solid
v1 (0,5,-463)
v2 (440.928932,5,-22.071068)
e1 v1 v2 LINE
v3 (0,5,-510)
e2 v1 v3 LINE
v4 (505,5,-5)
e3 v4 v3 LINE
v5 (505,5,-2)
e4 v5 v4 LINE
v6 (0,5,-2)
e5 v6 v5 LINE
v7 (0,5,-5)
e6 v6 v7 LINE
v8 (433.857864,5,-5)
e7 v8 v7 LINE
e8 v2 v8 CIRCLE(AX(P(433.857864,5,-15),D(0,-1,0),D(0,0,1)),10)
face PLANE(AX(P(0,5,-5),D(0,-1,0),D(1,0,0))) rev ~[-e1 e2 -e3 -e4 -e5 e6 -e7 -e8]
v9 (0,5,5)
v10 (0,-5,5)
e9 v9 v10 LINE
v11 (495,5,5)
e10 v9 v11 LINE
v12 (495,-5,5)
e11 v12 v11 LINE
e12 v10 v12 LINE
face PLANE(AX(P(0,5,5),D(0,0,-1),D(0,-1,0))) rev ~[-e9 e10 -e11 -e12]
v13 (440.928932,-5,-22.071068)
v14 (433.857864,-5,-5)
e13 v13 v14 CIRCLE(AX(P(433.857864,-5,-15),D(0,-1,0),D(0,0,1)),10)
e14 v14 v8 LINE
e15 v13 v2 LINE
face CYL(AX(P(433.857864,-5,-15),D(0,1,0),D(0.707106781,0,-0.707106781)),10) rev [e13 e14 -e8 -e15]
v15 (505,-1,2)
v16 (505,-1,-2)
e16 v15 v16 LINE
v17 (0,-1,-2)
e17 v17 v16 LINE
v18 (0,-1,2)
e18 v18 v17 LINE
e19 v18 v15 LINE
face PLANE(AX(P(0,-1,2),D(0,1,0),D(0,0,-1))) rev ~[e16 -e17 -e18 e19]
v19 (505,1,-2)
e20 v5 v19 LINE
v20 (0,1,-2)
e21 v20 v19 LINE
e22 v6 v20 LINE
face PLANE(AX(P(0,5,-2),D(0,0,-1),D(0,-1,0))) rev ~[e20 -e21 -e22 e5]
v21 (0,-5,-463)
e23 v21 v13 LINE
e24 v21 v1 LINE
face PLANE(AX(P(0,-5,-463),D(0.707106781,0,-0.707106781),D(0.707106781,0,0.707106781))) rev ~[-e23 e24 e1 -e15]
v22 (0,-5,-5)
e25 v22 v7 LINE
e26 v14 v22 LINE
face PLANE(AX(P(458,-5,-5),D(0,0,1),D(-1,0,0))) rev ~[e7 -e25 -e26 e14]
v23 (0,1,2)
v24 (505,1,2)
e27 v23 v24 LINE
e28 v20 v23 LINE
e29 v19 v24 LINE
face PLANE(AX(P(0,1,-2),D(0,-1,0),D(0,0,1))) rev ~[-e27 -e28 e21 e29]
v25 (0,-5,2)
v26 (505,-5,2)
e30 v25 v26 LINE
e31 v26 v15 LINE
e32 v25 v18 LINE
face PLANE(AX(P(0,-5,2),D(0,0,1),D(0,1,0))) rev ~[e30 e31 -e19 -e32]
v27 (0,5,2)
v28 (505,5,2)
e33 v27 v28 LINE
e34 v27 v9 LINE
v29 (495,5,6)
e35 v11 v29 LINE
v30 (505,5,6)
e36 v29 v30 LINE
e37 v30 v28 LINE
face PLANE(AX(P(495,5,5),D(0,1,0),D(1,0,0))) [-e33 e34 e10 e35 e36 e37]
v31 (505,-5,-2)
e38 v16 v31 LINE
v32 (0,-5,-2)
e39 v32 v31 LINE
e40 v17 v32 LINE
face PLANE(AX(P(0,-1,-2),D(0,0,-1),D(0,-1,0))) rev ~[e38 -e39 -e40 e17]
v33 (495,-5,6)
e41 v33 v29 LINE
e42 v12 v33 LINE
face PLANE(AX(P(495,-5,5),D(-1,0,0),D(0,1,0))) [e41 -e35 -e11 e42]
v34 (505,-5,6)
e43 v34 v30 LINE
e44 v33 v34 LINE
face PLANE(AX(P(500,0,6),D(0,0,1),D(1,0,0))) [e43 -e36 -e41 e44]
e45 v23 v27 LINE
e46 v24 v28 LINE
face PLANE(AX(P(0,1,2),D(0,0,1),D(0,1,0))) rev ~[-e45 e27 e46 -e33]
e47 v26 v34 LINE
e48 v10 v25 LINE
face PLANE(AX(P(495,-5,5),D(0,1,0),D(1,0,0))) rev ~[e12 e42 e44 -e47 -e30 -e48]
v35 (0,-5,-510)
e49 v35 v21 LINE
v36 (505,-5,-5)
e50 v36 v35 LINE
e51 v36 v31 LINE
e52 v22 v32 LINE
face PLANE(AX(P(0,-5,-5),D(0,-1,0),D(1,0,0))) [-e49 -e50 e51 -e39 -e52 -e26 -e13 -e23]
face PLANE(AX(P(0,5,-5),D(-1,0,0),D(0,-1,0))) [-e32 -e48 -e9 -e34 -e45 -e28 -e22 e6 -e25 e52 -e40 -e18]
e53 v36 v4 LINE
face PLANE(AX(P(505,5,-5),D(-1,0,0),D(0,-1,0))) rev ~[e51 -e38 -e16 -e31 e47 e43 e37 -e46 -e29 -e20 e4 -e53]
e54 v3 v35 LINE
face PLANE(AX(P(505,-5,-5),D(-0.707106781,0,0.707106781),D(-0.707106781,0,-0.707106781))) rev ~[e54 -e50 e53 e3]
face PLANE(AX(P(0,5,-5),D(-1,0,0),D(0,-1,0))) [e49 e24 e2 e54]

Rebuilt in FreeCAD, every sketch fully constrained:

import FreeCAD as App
import Part
import Sketcher
Q = App.Units.Quantity


def edges_at(feature, points):
    """Names of the edges that pass closest to the given points."""
    edges = feature.Shape.Edges
    near = lambda p: min(range(len(edges)), key=lambda i: edges[i].distToShape(Part.Vertex(*p))[0])
    return sorted({f"Edge{near(p) + 1}" for p in points})

doc = App.newDocument("Part")
body = doc.addObject("PartDesign::Body", "Body")

# Sketch on YZ plane
sketch1 = doc.addObject("Sketcher::SketchObject", "Sketch")
body.addObject(sketch1)
sketch1.AttachmentSupport = (doc.YZ_Plane, [""])
sketch1.MapMode = "FlatFace"
sketch1.addGeometry([
    Part.LineSegment(App.Vector(-1, 2, 0), App.Vector(-1, -2, 0)),  # 0
    Part.LineSegment(App.Vector(-1, -2, 0), App.Vector(-5, -2, 0)),  # 1
    Part.LineSegment(App.Vector(-5, -2, 0), App.Vector(-5, -5, 0)),  # 2
    Part.LineSegment(App.Vector(-5, -5, 0), App.Vector(5, -5, 0)),  # 3
    Part.LineSegment(App.Vector(5, -5, 0), App.Vector(5, -2, 0)),  # 4
    Part.LineSegment(App.Vector(5, -2, 0), App.Vector(1, -2, 0)),  # 5
    Part.LineSegment(App.Vector(1, -2, 0), App.Vector(1, 2, 0)),  # 6
    Part.LineSegment(App.Vector(1, 2, 0), App.Vector(5, 2, 0)),  # 7
    Part.LineSegment(App.Vector(5, 2, 0), App.Vector(5, 5, 0)),  # 8
    Part.LineSegment(App.Vector(5, 5, 0), App.Vector(-5, 5, 0)),  # 9
    Part.LineSegment(App.Vector(-5, 5, 0), App.Vector(-5, 2, 0)),  # 10
    Part.LineSegment(App.Vector(-5, 2, 0), App.Vector(-1, 2, 0)),  # 11
], False)
sketch1.addConstraint([
    Sketcher.Constraint("Coincident", 0, 2, 1, 1),
    Sketcher.Constraint("Coincident", 1, 2, 2, 1),
    Sketcher.Constraint("Coincident", 2, 2, 3, 1),
    Sketcher.Constraint("Coincident", 3, 2, 4, 1),
    Sketcher.Constraint("Coincident", 4, 2, 5, 1),
    Sketcher.Constraint("Coincident", 5, 2, 6, 1),
    Sketcher.Constraint("Coincident", 6, 2, 7, 1),
    Sketcher.Constraint("Coincident", 7, 2, 8, 1),
    Sketcher.Constraint("Coincident", 8, 2, 9, 1),
    Sketcher.Constraint("Coincident", 9, 2, 10, 1),
    Sketcher.Constraint("Coincident", 10, 2, 11, 1),
    Sketcher.Constraint("Coincident", 11, 2, 0, 1),
    Sketcher.Constraint("Vertical", 0),
    Sketcher.Constraint("Horizontal", 1),
    Sketcher.Constraint("Vertical", 2),
    Sketcher.Constraint("Horizontal", 3),
    Sketcher.Constraint("Vertical", 4),
    Sketcher.Constraint("Horizontal", 5),
    Sketcher.Constraint("Vertical", 6),
    Sketcher.Constraint("Horizontal", 7),
    Sketcher.Constraint("Vertical", 8),
    Sketcher.Constraint("Horizontal", 9),
    Sketcher.Constraint("Vertical", 10),
    Sketcher.Constraint("Horizontal", 11),
    Sketcher.Constraint("Symmetric", 0, 2, 6, 2, -1, 1),
    Sketcher.Constraint("Symmetric", 2, 2, 8, 2, -1, 1),
    Sketcher.Constraint("Symmetric", 4, 2, 10, 2, -1, 1),
    Sketcher.Constraint("Symmetric", 1, 2, 4, 2, -2),
    Sketcher.Constraint("Equal", 11, 0),
    Sketcher.Constraint("DistanceX", 1, 2, 1, 1, Q("4 mm")),
    Sketcher.Constraint("DistanceX", 3, 1, 3, 2, Q("10 mm")),
    Sketcher.Constraint("DistanceY", 2, 2, 2, 1, Q("3 mm")),
])
pad1 = doc.addObject("PartDesign::Pad", "Pad")
body.addObject(pad1)
pad1.Profile = sketch1
pad1.Length = 505

# Sketch on XY plane
sketch2 = doc.addObject("Sketcher::SketchObject", "Sketch001")
body.addObject(sketch2)
sketch2.AttachmentSupport = (doc.XY_Plane, [""])
sketch2.MapMode = "FlatFace"
sketch2.AttachmentOffset = App.Placement(App.Vector(0, 0, 5), App.Rotation())
sketch2.addGeometry([
    Part.LineSegment(App.Vector(495, 5, 0), App.Vector(495, -5, 0)),
    Part.LineSegment(App.Vector(495, -5, 0), App.Vector(505, -5, 0)),
    Part.LineSegment(App.Vector(505, -5, 0), App.Vector(505, 5, 0)),
    Part.LineSegment(App.Vector(505, 5, 0), App.Vector(495, 5, 0)),
], False)
sketch2.addConstraint([
    Sketcher.Constraint("Coincident", 0, 2, 1, 1),
    Sketcher.Constraint("Coincident", 1, 2, 2, 1),
    Sketcher.Constraint("Coincident", 2, 2, 3, 1),
    Sketcher.Constraint("Coincident", 3, 2, 0, 1),
    Sketcher.Constraint("Vertical", 0),
    Sketcher.Constraint("Horizontal", 1),
    Sketcher.Constraint("Vertical", 2),
    Sketcher.Constraint("Horizontal", 3),
    Sketcher.Constraint("Equal", 3, 0),
    Sketcher.Constraint("DistanceX", 1, 1, 1, 2, Q("10 mm")),
    Sketcher.Constraint("DistanceX", -1, 1, 0, 2, Q("495 mm")),
    Sketcher.Constraint("DistanceY", 0, 2, -1, 1, Q("5 mm")),
])
pad2 = doc.addObject("PartDesign::Pad", "Pad001")
body.addObject(pad2)
pad2.Profile = sketch2
pad2.Length = 1

# Sketch on XY plane
sketch3 = doc.addObject("Sketcher::SketchObject", "Sketch002")
body.addObject(sketch3)
sketch3.AttachmentSupport = (doc.XY_Plane, [""])
sketch3.MapMode = "FlatFace"
sketch3.AttachmentOffset = App.Placement(App.Vector(0, 0, -5), App.Rotation())
sketch3.addGeometry([
    Part.LineSegment(App.Vector(0, -5, 0), App.Vector(0, 5, 0)),
    Part.LineSegment(App.Vector(0, 5, 0), App.Vector(505, 5, 0)),
    Part.LineSegment(App.Vector(505, 5, 0), App.Vector(505, -5, 0)),
    Part.LineSegment(App.Vector(505, -5, 0), App.Vector(0, -5, 0)),
], False)
sketch3.addConstraint([
    Sketcher.Constraint("Coincident", 0, 2, 1, 1),
    Sketcher.Constraint("Coincident", 1, 2, 2, 1),
    Sketcher.Constraint("Coincident", 2, 2, 3, 1),
    Sketcher.Constraint("Coincident", 3, 2, 0, 1),
    Sketcher.Constraint("Vertical", 0),
    Sketcher.Constraint("Horizontal", 1),
    Sketcher.Constraint("Vertical", 2),
    Sketcher.Constraint("Horizontal", 3),
    Sketcher.Constraint("Symmetric", 0, 2, 3, 2, -1, 1),
    Sketcher.Constraint("DistanceX", 1, 1, 1, 2, Q("505 mm")),
    Sketcher.Constraint("DistanceY", 0, 1, 0, 2, Q("10 mm")),
])
pad3 = doc.addObject("PartDesign::Pad", "Pad002")
body.addObject(pad3)
pad3.Profile = sketch3
pad3.Length = 505
pad3.Reversed = True

# Sketch on XZ plane
sketch4 = doc.addObject("Sketcher::SketchObject", "Sketch003")
body.addObject(sketch4)
sketch4.AttachmentSupport = (doc.XZ_Plane, [""])
sketch4.MapMode = "FlatFace"
sketch4.AttachmentOffset = App.Placement(App.Vector(0, 0, 5), App.Rotation())
sketch4.addGeometry([
    Part.LineSegment(App.Vector(0, -5, 0), App.Vector(0, -463, 0)),
    Part.LineSegment(App.Vector(0, -463, 0), App.Vector(458, -5, 0)),
    Part.LineSegment(App.Vector(458, -5, 0), App.Vector(0, -5, 0)),
], False)
sketch4.addConstraint([
    Sketcher.Constraint("Coincident", 0, 2, 1, 1),
    Sketcher.Constraint("Coincident", 1, 2, 2, 1),
    Sketcher.Constraint("Coincident", 2, 2, 0, 1),
    Sketcher.Constraint("Vertical", 0),
    Sketcher.Constraint("Horizontal", 2),
    Sketcher.Constraint("PointOnObject", 0, 2, -2),
    Sketcher.Constraint("Equal", 2, 0),
    Sketcher.Constraint("DistanceX", 2, 2, 2, 1, Q("458 mm")),
    Sketcher.Constraint("DistanceY", 0, 2, -1, 1, Q("463 mm")),
])
pocket1 = doc.addObject("PartDesign::Pocket", "Pocket")
body.addObject(pocket1)
pocket1.Profile = sketch4
pocket1.Type = "ThroughAll"

# Sketch on XZ plane
sketch5 = doc.addObject("Sketcher::SketchObject", "Sketch004")
body.addObject(sketch5)
sketch5.AttachmentSupport = (doc.XZ_Plane, [""])
sketch5.MapMode = "FlatFace"
sketch5.AttachmentOffset = App.Placement(App.Vector(0, 0, 5), App.Rotation())
sketch5.addGeometry([
    Part.LineSegment(App.Vector(0, -5, 0), App.Vector(0, -463, 0)),
    Part.LineSegment(App.Vector(0, -463, 0), App.Vector(458, -5, 0)),
    Part.LineSegment(App.Vector(458, -5, 0), App.Vector(0, -5, 0)),
], False)
sketch5.addConstraint([
    Sketcher.Constraint("Coincident", 0, 2, 1, 1),
    Sketcher.Constraint("Coincident", 1, 2, 2, 1),
    Sketcher.Constraint("Coincident", 2, 2, 0, 1),
    Sketcher.Constraint("Vertical", 0),
    Sketcher.Constraint("Horizontal", 2),
    Sketcher.Constraint("PointOnObject", 0, 2, -2),
    Sketcher.Constraint("Equal", 2, 0),
    Sketcher.Constraint("DistanceX", 2, 2, 2, 1, Q("458 mm")),
    Sketcher.Constraint("DistanceY", 0, 2, -1, 1, Q("463 mm")),
])
pocket2 = doc.addObject("PartDesign::Pocket", "Pocket001")
body.addObject(pocket2)
pocket2.Profile = sketch5
pocket2.Type = "ThroughAll"

# Sketch on XZ plane
sketch6 = doc.addObject("Sketcher::SketchObject", "Sketch005")
body.addObject(sketch6)
sketch6.AttachmentSupport = (doc.XZ_Plane, [""])
sketch6.MapMode = "FlatFace"
sketch6.AttachmentOffset = App.Placement(App.Vector(0, 0, 5), App.Rotation())
sketch6.addGeometry([
    Part.LineSegment(App.Vector(505, -5, 0), App.Vector(0, -510, 0)),
    Part.LineSegment(App.Vector(0, -510, 0), App.Vector(505, -510, 0)),
    Part.LineSegment(App.Vector(505, -510, 0), App.Vector(505, -5, 0)),
], False)
sketch6.addConstraint([
    Sketcher.Constraint("Coincident", 0, 2, 1, 1),
    Sketcher.Constraint("Coincident", 1, 2, 2, 1),
    Sketcher.Constraint("Coincident", 2, 2, 0, 1),
    Sketcher.Constraint("Horizontal", 1),
    Sketcher.Constraint("Vertical", 2),
    Sketcher.Constraint("PointOnObject", 0, 2, -2),
    Sketcher.Constraint("Equal", 1, 2),
    Sketcher.Constraint("DistanceX", 1, 1, 1, 2, Q("505 mm")),
    Sketcher.Constraint("DistanceY", 0, 2, -1, 1, Q("510 mm")),
])
pocket3 = doc.addObject("PartDesign::Pocket", "Pocket002")
body.addObject(pocket3)
pocket3.Profile = sketch6
pocket3.Type = "ThroughAll"
doc.recompute()

fillet = doc.addObject("PartDesign::Fillet", "Fillet")
body.addObject(fillet)
fillet.Base = (pocket3, edges_at(pocket3, [(458, 0, -5)]))
fillet.Radius = 10

doc.recompute()
